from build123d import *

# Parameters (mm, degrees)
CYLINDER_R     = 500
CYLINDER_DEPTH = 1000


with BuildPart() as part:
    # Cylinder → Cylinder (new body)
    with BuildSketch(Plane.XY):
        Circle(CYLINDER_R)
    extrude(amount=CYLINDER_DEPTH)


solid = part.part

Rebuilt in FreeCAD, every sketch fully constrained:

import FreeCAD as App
import Part
import Sketcher
from FreeCAD import Vector

doc = App.newDocument("Part")
body = doc.addObject("PartDesign::Body", "Body")

sketch1 = body.newObject("Sketcher::SketchObject", "Sketch")
sketch1.AttachmentSupport = (doc.getObject("XY_Plane"), [""])
sketch1.MapMode = "FlatFace"
sketch1.addGeometry(Part.Circle(Vector(0, 0, 0), Vector(0, 0, 1), 500), False)
sketch1.addConstraint([
    Sketcher.Constraint("Coincident", 0, 3, -1, 1),
    Sketcher.Constraint("Diameter", 0, 1000.0),
])
pad1 = body.newObject("PartDesign::Pad", "Pad")
pad1.Profile = sketch1
pad1.Length = 1000

doc.recompute()
